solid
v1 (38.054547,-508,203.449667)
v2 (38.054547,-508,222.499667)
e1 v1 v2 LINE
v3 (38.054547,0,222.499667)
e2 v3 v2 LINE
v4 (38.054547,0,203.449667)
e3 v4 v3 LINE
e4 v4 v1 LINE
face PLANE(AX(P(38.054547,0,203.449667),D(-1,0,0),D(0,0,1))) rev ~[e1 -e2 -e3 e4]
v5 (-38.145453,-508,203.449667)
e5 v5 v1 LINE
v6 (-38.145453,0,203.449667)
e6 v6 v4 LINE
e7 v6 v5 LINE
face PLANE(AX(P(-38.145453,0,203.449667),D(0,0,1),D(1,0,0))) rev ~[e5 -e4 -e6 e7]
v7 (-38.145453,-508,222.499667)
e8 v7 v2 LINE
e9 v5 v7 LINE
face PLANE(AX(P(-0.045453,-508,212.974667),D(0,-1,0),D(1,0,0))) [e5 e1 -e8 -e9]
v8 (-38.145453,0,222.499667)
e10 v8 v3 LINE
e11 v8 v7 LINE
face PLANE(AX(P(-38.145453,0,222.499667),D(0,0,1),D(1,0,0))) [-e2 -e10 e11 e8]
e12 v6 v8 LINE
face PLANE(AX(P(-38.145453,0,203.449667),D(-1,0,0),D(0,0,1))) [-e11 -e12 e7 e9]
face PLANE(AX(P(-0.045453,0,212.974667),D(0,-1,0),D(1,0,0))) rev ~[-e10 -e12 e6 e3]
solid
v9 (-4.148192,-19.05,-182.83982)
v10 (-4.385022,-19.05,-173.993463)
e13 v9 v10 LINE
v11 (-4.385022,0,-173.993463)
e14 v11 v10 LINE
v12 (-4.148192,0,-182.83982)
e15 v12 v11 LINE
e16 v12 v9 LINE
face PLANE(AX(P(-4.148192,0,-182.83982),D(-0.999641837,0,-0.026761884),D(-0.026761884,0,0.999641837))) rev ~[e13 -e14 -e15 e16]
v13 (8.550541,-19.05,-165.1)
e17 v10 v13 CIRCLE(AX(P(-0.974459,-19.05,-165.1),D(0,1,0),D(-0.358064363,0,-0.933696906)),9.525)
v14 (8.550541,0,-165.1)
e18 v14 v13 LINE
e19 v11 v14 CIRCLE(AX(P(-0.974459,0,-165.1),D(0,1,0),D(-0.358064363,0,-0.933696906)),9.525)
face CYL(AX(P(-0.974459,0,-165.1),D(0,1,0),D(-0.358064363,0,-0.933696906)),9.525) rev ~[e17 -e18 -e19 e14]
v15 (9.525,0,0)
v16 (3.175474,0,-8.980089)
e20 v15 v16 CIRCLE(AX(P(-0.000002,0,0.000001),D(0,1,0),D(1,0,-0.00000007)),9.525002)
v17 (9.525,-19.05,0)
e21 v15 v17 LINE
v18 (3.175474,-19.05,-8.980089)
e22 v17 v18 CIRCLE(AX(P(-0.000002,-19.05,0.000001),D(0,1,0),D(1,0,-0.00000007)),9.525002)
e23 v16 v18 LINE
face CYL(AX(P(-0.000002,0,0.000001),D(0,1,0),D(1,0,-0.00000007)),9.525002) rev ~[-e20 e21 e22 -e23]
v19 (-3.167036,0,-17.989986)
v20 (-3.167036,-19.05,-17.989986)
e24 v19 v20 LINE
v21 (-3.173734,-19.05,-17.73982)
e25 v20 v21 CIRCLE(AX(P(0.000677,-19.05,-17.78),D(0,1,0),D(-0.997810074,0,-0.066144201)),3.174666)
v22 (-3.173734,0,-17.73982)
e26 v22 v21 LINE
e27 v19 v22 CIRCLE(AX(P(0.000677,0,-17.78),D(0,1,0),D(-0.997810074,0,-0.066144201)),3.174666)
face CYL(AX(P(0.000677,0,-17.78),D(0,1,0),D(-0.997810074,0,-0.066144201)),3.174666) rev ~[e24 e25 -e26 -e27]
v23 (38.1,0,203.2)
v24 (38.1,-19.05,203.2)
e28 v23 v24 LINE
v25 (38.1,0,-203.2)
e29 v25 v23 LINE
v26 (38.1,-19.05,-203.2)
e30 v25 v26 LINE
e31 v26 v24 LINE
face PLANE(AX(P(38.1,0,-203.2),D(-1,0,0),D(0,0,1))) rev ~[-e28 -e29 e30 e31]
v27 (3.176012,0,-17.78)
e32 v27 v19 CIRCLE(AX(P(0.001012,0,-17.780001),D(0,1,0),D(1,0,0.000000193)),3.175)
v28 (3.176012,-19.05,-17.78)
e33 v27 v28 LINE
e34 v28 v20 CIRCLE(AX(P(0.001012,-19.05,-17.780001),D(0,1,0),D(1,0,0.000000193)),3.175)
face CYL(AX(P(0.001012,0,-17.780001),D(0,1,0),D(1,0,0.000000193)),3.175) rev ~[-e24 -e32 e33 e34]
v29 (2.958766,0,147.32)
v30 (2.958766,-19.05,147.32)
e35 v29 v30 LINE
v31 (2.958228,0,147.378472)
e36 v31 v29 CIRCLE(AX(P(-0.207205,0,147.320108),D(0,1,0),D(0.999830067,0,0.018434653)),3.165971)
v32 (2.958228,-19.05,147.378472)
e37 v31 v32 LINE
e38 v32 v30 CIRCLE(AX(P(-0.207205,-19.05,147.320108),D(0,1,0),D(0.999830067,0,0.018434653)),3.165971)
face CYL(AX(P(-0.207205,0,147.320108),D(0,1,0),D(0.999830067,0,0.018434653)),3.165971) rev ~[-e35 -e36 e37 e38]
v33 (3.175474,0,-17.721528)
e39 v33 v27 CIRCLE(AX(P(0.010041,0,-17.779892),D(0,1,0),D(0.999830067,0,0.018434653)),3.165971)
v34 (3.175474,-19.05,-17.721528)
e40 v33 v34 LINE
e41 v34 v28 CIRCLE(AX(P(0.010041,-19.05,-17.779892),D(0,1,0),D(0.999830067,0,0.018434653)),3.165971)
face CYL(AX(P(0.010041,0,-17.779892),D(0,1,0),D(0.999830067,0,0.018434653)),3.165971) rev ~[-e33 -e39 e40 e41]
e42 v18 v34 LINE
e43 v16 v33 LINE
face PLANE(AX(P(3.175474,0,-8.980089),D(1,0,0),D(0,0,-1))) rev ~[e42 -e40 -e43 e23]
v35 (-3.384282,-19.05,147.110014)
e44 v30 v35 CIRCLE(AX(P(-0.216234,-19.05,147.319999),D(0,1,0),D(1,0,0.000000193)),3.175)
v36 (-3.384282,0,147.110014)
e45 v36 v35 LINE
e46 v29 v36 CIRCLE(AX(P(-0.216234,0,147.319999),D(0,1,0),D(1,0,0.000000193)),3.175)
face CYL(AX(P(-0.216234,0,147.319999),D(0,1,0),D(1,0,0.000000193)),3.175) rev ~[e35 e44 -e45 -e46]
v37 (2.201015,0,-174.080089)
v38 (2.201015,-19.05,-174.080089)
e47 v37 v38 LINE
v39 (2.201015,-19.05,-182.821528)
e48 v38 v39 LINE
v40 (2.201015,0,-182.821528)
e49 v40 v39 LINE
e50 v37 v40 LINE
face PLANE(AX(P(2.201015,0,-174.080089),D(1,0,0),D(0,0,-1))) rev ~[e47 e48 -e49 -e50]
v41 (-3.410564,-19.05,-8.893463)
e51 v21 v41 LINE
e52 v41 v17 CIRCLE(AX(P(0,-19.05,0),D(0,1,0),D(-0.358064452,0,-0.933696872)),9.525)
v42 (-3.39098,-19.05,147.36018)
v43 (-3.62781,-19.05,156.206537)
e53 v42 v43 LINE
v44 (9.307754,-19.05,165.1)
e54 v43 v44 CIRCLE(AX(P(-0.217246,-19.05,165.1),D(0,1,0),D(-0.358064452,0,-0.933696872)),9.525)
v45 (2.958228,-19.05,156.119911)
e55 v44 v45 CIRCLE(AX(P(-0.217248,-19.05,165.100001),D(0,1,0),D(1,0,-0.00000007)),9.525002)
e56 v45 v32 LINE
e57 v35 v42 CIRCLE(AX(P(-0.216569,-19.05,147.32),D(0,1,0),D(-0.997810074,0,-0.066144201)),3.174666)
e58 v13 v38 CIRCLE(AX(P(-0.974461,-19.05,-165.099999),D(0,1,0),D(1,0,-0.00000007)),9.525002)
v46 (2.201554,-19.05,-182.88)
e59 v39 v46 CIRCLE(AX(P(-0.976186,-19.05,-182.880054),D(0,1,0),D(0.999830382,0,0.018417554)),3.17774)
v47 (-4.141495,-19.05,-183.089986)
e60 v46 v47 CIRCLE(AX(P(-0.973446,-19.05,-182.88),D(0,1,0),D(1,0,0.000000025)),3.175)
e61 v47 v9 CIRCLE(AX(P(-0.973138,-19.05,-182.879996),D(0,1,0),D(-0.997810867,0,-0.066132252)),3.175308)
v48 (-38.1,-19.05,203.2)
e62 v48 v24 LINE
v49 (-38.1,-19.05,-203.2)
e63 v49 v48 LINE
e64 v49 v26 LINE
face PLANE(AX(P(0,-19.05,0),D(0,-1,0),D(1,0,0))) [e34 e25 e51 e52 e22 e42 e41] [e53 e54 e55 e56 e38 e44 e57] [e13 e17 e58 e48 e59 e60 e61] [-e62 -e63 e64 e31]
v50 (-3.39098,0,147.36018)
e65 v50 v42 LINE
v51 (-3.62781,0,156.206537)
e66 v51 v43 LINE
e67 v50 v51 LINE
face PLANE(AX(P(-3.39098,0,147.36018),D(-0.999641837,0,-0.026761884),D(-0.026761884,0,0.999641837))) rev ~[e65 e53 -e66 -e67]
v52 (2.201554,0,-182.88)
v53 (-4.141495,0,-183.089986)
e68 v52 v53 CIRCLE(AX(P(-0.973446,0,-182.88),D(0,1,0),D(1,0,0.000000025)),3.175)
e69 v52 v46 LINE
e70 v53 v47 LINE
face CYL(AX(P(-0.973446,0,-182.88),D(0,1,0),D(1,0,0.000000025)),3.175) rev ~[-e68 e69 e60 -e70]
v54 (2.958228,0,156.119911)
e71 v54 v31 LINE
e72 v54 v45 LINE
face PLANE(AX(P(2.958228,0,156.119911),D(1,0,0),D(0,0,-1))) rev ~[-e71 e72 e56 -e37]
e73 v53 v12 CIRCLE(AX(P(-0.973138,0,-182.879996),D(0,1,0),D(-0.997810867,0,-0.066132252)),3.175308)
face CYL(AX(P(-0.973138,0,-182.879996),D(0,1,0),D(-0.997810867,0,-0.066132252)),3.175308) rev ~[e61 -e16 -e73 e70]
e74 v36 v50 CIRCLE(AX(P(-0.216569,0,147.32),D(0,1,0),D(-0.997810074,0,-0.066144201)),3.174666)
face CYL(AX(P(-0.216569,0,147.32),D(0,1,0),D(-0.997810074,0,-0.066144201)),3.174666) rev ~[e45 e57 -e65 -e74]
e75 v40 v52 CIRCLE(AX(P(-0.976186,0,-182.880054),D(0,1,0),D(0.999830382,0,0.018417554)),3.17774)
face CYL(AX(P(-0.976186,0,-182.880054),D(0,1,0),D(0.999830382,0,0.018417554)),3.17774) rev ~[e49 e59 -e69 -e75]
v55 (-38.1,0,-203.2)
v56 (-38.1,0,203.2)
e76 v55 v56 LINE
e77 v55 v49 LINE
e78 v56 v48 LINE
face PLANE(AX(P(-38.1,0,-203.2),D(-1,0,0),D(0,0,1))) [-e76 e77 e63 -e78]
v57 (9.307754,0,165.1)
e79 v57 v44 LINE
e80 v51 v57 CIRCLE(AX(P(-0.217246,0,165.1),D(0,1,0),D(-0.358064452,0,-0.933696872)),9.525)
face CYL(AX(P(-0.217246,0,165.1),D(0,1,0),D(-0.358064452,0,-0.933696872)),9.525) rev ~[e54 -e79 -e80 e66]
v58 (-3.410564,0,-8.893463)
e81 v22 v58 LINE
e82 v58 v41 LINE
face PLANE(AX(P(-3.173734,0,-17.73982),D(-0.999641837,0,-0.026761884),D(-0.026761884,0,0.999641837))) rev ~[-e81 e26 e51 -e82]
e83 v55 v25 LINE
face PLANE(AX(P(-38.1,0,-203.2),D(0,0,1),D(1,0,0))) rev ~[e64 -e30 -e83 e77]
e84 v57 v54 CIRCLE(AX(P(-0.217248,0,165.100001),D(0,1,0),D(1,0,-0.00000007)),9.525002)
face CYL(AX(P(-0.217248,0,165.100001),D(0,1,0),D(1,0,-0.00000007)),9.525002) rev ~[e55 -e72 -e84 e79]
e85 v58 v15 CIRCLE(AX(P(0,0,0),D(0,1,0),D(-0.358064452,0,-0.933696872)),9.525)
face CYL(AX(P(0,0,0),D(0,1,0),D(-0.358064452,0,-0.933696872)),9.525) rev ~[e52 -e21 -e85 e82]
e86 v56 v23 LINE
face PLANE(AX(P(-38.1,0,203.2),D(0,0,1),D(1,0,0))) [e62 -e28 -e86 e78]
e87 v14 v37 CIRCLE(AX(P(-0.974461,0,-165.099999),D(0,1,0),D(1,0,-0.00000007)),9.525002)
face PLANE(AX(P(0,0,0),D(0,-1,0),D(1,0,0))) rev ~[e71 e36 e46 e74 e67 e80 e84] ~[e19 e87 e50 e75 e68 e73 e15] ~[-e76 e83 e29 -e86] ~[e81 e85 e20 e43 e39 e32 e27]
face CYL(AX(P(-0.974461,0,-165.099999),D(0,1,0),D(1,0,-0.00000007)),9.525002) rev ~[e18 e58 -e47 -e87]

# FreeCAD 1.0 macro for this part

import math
import FreeCAD as App
import Part
import Sketcher

V = App.Vector
Q = App.Units.Quantity

doc = App.newDocument("Part")
params = doc.addObject("Spreadsheet::Sheet", "Params")
for row, (alias, value) in enumerate([
    ("sketch1_width", "3 in"),
    ("sketch1_height", "16 in"),
    ("sketch1_radius", "0.375 in"),
    ("sketch1_radius2", "0.125 in"),
    ("pad1_length", "0.75 in"),
    ("sketch2_width", "3 in"),
    ("sketch2_height", "0.75 in"),
    ("pad2_length", "20 in"),
], start=1):
    params.set(f"A{row}", alias)
    params.set(f"B{row}", "=" + value)
    params.setAlias(f"B{row}", alias)

body = doc.addObject("PartDesign::Body", "Body")

sketch1 = body.newObject("Sketcher::SketchObject", "Sketch")
sketch1.AttachmentSupport = (doc.getObject("XZ_Plane"), [""])
sketch1.MapMode = "FlatFace"
sketch1.addGeometry(Part.LineSegment(V(-38.1, 203.2, 0), V(-38.1, -203.2, 0)), False)
sketch1.addGeometry(Part.LineSegment(V(-38.1, -203.2, 0), V(38.1, -203.2, 0)), False)
sketch1.addGeometry(Part.LineSegment(V(38.1, -203.2, 0), V(38.1, 203.2, 0)), False)
sketch1.addGeometry(Part.LineSegment(V(38.1, 203.2, 0), V(-38.1, 203.2, 0)), False)
sketch1.addGeometry(Part.LineSegment(V(-4.15, -182.84, 0), V(-4.39, -173.99, 0)), False)
sketch1.addGeometry(Part.ArcOfCircle(Part.Circle(V(-0.97, -165.1, 0), V(0, 0, 1), 9.52), math.radians(0), math.radians(249)), False)
sketch1.addGeometry(Part.ArcOfCircle(Part.Circle(V(-0.97, -165.1, 0), V(0, 0, 1), 9.53), math.radians(-71), math.radians(0)), False)
sketch1.addGeometry(Part.LineSegment(V(2.2, -174.08, 0), V(2.2, -182.82, 0)), False)
sketch1.addGeometry(Part.ArcOfCircle(Part.Circle(V(-0.98, -182.88, 0), V(0, 0, 1), 3.18), math.radians(0), math.radians(1.06)), False)
sketch1.addGeometry(Part.ArcOfCircle(Part.Circle(V(-0.97, -182.88, 0), V(0, 0, 1), 3.18), math.radians(-176), math.radians(0)), False)
sketch1.addGeometry(Part.ArcOfCircle(Part.Circle(V(-0.97, -182.88, 0), V(0, 0, 1), 3.18), math.radians(179.28), math.radians(183.79)), False)
sketch1.addGeometry(Part.LineSegment(V(-3.17, -17.74, 0), V(-3.41, -8.89, 0)), False)
sketch1.addGeometry(Part.ArcOfCircle(Part.Circle(V(0, 0, 0), V(0, 0, 1), 9.53), math.radians(0), math.radians(249)), False)
sketch1.addGeometry(Part.ArcOfCircle(Part.Circle(V(0, 0, 0), V(0, 0, 1), 9.53), math.radians(-71), math.radians(0)), False)
sketch1.addGeometry(Part.LineSegment(V(3.18, -8.98, 0), V(3.18, -17.72, 0)), False)
sketch1.addGeometry(Part.ArcOfCircle(Part.Circle(V(0.01, -17.78, 0), V(0, 0, 1), 3.17), math.radians(0), math.radians(1.06)), False)
sketch1.addGeometry(Part.ArcOfCircle(Part.Circle(V(0, -17.78, 0), V(0, 0, 1), 3.17), math.radians(-176), math.radians(0)), False)
sketch1.addGeometry(Part.ArcOfCircle(Part.Circle(V(0, -17.78, 0), V(0, 0, 1), 3.17), math.radians(179.27), math.radians(183.79)), False)
sketch1.addGeometry(Part.LineSegment(V(-3.39, 147.36, 0), V(-3.63, 156.21, 0)), False)
sketch1.addGeometry(Part.ArcOfCircle(Part.Circle(V(-0.22, 165.1, 0), V(0, 0, 1), 9.53), math.radians(0), math.radians(249)), False)
sketch1.addGeometry(Part.ArcOfCircle(Part.Circle(V(-0.22, 165.1, 0), V(0, 0, 1), 9.53), math.radians(-71), math.radians(0)), False)
sketch1.addGeometry(Part.LineSegment(V(2.96, 156.12, 0), V(2.96, 147.38, 0)), False)
sketch1.addGeometry(Part.ArcOfCircle(Part.Circle(V(-0.21, 147.32, 0), V(0, 0, 1), 3.17), math.radians(0), math.radians(1.06)), False)
sketch1.addGeometry(Part.ArcOfCircle(Part.Circle(V(-0.22, 147.32, 0), V(0, 0, 1), 3.17), math.radians(-176), math.radians(0)), False)
sketch1.addGeometry(Part.ArcOfCircle(Part.Circle(V(-0.22, 147.32, 0), V(0, 0, 1), 3.17), math.radians(179.27), math.radians(183.79)), False)
sketch1.addConstraint(Sketcher.Constraint("Coincident", 0, 2, 1, 1))
sketch1.addConstraint(Sketcher.Constraint("Coincident", 1, 2, 2, 1))
sketch1.addConstraint(Sketcher.Constraint("Coincident", 2, 2, 3, 1))
sketch1.addConstraint(Sketcher.Constraint("Coincident", 3, 2, 0, 1))
sketch1.addConstraint(Sketcher.Constraint("Coincident", 4, 2, 5, 2))
sketch1.addConstraint(Sketcher.Constraint("Tangent", 5, 1, 6, 2))
sketch1.addConstraint(Sketcher.Constraint("Coincident", 6, 1, 7, 1))
sketch1.addConstraint(Sketcher.Constraint("Coincident", 7, 2, 8, 2))
sketch1.addConstraint(Sketcher.Constraint("Coincident", 8, 1, 9, 2))
sketch1.addConstraint(Sketcher.Constraint("Coincident", 9, 1, 10, 2))
sketch1.addConstraint(Sketcher.Constraint("Coincident", 10, 1, 4, 1))
sketch1.addConstraint(Sketcher.Constraint("Coincident", 11, 2, 12, 2))
sketch1.addConstraint(Sketcher.Constraint("Tangent", 12, 1, 13, 2))
sketch1.addConstraint(Sketcher.Constraint("Coincident", 13, 1, 14, 1))
sketch1.addConstraint(Sketcher.Constraint("Coincident", 14, 2, 15, 2))
sketch1.addConstraint(Sketcher.Constraint("Coincident", 15, 1, 16, 2))
sketch1.addConstraint(Sketcher.Constraint("Coincident", 16, 1, 17, 2))
sketch1.addConstraint(Sketcher.Constraint("Coincident", 17, 1, 11, 1))
sketch1.addConstraint(Sketcher.Constraint("Coincident", 18, 2, 19, 2))
sketch1.addConstraint(Sketcher.Constraint("Tangent", 19, 1, 20, 2))
sketch1.addConstraint(Sketcher.Constraint("Coincident", 20, 1, 21, 1))
sketch1.addConstraint(Sketcher.Constraint("Coincident", 21, 2, 22, 2))
sketch1.addConstraint(Sketcher.Constraint("Coincident", 22, 1, 23, 2))
sketch1.addConstraint(Sketcher.Constraint("Coincident", 23, 1, 24, 2))
sketch1.addConstraint(Sketcher.Constraint("Coincident", 24, 1, 18, 1))
sketch1.addConstraint(Sketcher.Constraint("Vertical", 0))
sketch1.addConstraint(Sketcher.Constraint("Horizontal", 1))
sketch1.addConstraint(Sketcher.Constraint("Vertical", 2))
sketch1.addConstraint(Sketcher.Constraint("Horizontal", 3))
sketch1.addConstraint(Sketcher.Constraint("Vertical", 7))
sketch1.addConstraint(Sketcher.Constraint("Vertical", 14))
sketch1.addConstraint(Sketcher.Constraint("Vertical", 21))
sketch1.addConstraint(Sketcher.Constraint("Coincident", 12, 3, -1, 1))
sketch1.addConstraint(Sketcher.Constraint("Equal", 5, 6))
sketch1.addConstraint(Sketcher.Constraint("Equal", 6, 12))
sketch1.addConstraint(Sketcher.Constraint("Equal", 12, 13))
sketch1.addConstraint(Sketcher.Constraint("Equal", 9, 16))
sketch1.addConstraint(Sketcher.Constraint("Equal", 13, 19))
sketch1.addConstraint(Sketcher.Constraint("Equal", 19, 20))
sketch1.addConstraint(Sketcher.Constraint("Equal", 15, 22))
sketch1.addConstraint(Sketcher.Constraint("Equal", 16, 23))
sketch1.addConstraint(Sketcher.Constraint("Equal", 17, 24))
sketch1.addConstraint(Sketcher.Constraint("Symmetric", 0, 2, 2, 2, -1, 1))
sketch1.addConstraint(Sketcher.Constraint("PointOnObject", 12, 1, -1))
sketch1.addConstraint(Sketcher.Constraint("Parallel", 4, 11))
sketch1.addConstraint(Sketcher.Constraint("Parallel", 11, 18))
sketch1.addConstraint(Sketcher.Constraint("Horizontal", 16, 3, 17, 3))
sketch1.addConstraint(Sketcher.Constraint("Horizontal", 23, 3, 24, 3))
sketch1.addConstraint(Sketcher.Constraint("Horizontal", 6, 3, 5, 1))
sketch1.addConstraint(Sketcher.Constraint("Horizontal", 9, 3, 8, 1))
sketch1.addConstraint(Sketcher.Constraint("Horizontal", 17, 3, 15, 1))
sketch1.addConstraint(Sketcher.Constraint("Horizontal", 20, 3, 19, 1))
sketch1.addConstraint(Sketcher.Constraint("Horizontal", 24, 3, 22, 1))
sketch1.addConstraint(Sketcher.Constraint("Equal", 7, 14))
sketch1.addConstraint(Sketcher.Constraint("Equal", 14, 21))
sketch1.addConstraint(Sketcher.Constraint("Equal", 4, 11))
sketch1.addConstraint(Sketcher.Constraint("Equal", 11, 18))
sketch1.addConstraint(Sketcher.Constraint("DistanceX", 1, 1, 1, 2, Q("3 in")))
sketch1.addConstraint(Sketcher.Constraint("DistanceY", 0, 2, 0, 1, Q("16 in")))
sketch1.addConstraint(Sketcher.Constraint("Radius", 5, Q("0.375 in")))
sketch1.addConstraint(Sketcher.Constraint("Radius", 9, Q("0.125 in")))
sketch1.addConstraint(Sketcher.Constraint("DistanceY", 5, 3, -1, 1, Q("6.5 in")))
sketch1.addConstraint(Sketcher.Constraint("DistanceY", 9, 3, -1, 1, Q("7.2 in")))
sketch1.addConstraint(Sketcher.Constraint("DistanceY", 10, 3, -1, 1, Q("7.1999998 in")))
sketch1.addConstraint(Sketcher.Constraint("DistanceY", 16, 3, -1, 1, Q("0.7 in")))
sketch1.addConstraint(Sketcher.Constraint("DistanceY", -1, 1, 19, 3, Q("6.5 in")))
sketch1.addConstraint(Sketcher.Constraint("DistanceY", -1, 1, 23, 3, Q("5.8 in")))
sketch1.addConstraint(Sketcher.Constraint("DistanceY", 15, 3, 22, 3, Q("6.5 in")))
sketch1.addConstraint(Sketcher.Constraint("Radius", 8, Q("3.17774 mm")))
sketch1.addConstraint(Sketcher.Constraint("Radius", 15, Q("3.165971 mm")))
sketch1.addConstraint(Sketcher.Constraint("Radius", 10, Q("3.175308 mm")))
sketch1.addConstraint(Sketcher.Constraint("Radius", 17, Q("3.174666 mm")))
sketch1.addConstraint(Sketcher.Constraint("DistanceY", 7, 2, 7, 1, Q("8.741439 mm")))
sketch1.addConstraint(Sketcher.Constraint("DistanceX", 6, 3, 15, 3, Q("0.984501 mm")))
sketch1.addConstraint(Sketcher.Constraint("DistanceX", 8, 3, 7, 2, Q("3.177201 mm")))
sketch1.addConstraint(Sketcher.Constraint("DistanceX", 17, 1, 16, 1, Q("0.006698 mm")))
sketch1.addConstraint(Sketcher.Constraint("DistanceX", 24, 1, 23, 1, Q("0.006698 mm")))
sketch1.addConstraint(Sketcher.Constraint("DistanceX", 5, 3, -1, 1, Q("0.974459 mm")))
sketch1.addConstraint(Sketcher.Constraint("DistanceX", 10, 3, -1, 1, Q("0.973138 mm")))
sketch1.addConstraint(Sketcher.Constraint("DistanceY", 15, 3, -1, 1, Q("17.779892 mm")))
sketch1.addConstraint(Sketcher.Constraint("DistanceX", 24, 3, -1, 1, Q("0.216569 mm")))
sketch1.addConstraint(Sketcher.Constraint("DistanceY", 10, 1, -1, 1, Q("182.83982 mm")))
sketch1.addConstraint(Sketcher.Constraint("DistanceX", 18, 2, -1, 1, Q("3.62781 mm")))
sketch1.addConstraint(Sketcher.Constraint("DistanceY", -1, 1, 20, 1, Q("156.119911 mm")))
sketch1.addConstraint(Sketcher.Constraint("DistanceX", 9, 1, 8, 3, Q("3.165309 mm")))
sketch1.setExpression("Constraints[57]", "Params.sketch1_width")
sketch1.setExpression("Constraints[58]", "Params.sketch1_height")
sketch1.setExpression("Constraints[59]", "Params.sketch1_radius")
sketch1.setExpression("Constraints[60]", "Params.sketch1_radius2")
pad1 = body.newObject("PartDesign::Pad", "Pad")
pad1.Profile = sketch1
pad1.setExpression("Length", "Params.pad1_length")
body2 = doc.addObject("PartDesign::Body", "Body001")

sketch2 = body2.newObject("Sketcher::SketchObject", "Sketch001")
sketch2.AttachmentSupport = (doc.getObject("XZ_Plane001"), [""])
sketch2.MapMode = "FlatFace"
sketch2.addGeometry(Part.LineSegment(V(-38, 222, 0), V(-38, 203, 0)), False)
sketch2.addGeometry(Part.LineSegment(V(-38, 203, 0), V(38, 203, 0)), False)
sketch2.addGeometry(Part.LineSegment(V(38, 203, 0), V(38, 222, 0)), False)
sketch2.addGeometry(Part.LineSegment(V(38, 222, 0), V(-38, 222, 0)), False)
sketch2.addConstraint(Sketcher.Constraint("Coincident", 0, 2, 1, 1))
sketch2.addConstraint(Sketcher.Constraint("Coincident", 1, 2, 2, 1))
sketch2.addConstraint(Sketcher.Constraint("Coincident", 2, 2, 3, 1))
sketch2.addConstraint(Sketcher.Constraint("Coincident", 3, 2, 0, 1))
sketch2.addConstraint(Sketcher.Constraint("Vertical", 0))
sketch2.addConstraint(Sketcher.Constraint("Horizontal", 1))
sketch2.addConstraint(Sketcher.Constraint("Vertical", 2))
sketch2.addConstraint(Sketcher.Constraint("Horizontal", 3))
sketch2.addConstraint(Sketcher.Constraint("DistanceX", 1, 1, 1, 2, Q("3 in")))
sketch2.addConstraint(Sketcher.Constraint("DistanceY", 0, 2, 0, 1, Q("0.75 in")))
sketch2.addConstraint(Sketcher.Constraint("DistanceX", 0, 2, -1, 1, Q("38.145453 mm")))
sketch2.addConstraint(Sketcher.Constraint("DistanceY", -1, 1, 0, 2, Q("203.449667 mm")))
sketch2.setExpression("Constraints[8]", "Params.sketch2_width")
sketch2.setExpression("Constraints[9]", "Params.sketch2_height")
pad2 = body2.newObject("PartDesign::Pad", "Pad001")
pad2.Profile = sketch2
pad2.setExpression("Length", "Params.pad2_length")

doc.recompute()
